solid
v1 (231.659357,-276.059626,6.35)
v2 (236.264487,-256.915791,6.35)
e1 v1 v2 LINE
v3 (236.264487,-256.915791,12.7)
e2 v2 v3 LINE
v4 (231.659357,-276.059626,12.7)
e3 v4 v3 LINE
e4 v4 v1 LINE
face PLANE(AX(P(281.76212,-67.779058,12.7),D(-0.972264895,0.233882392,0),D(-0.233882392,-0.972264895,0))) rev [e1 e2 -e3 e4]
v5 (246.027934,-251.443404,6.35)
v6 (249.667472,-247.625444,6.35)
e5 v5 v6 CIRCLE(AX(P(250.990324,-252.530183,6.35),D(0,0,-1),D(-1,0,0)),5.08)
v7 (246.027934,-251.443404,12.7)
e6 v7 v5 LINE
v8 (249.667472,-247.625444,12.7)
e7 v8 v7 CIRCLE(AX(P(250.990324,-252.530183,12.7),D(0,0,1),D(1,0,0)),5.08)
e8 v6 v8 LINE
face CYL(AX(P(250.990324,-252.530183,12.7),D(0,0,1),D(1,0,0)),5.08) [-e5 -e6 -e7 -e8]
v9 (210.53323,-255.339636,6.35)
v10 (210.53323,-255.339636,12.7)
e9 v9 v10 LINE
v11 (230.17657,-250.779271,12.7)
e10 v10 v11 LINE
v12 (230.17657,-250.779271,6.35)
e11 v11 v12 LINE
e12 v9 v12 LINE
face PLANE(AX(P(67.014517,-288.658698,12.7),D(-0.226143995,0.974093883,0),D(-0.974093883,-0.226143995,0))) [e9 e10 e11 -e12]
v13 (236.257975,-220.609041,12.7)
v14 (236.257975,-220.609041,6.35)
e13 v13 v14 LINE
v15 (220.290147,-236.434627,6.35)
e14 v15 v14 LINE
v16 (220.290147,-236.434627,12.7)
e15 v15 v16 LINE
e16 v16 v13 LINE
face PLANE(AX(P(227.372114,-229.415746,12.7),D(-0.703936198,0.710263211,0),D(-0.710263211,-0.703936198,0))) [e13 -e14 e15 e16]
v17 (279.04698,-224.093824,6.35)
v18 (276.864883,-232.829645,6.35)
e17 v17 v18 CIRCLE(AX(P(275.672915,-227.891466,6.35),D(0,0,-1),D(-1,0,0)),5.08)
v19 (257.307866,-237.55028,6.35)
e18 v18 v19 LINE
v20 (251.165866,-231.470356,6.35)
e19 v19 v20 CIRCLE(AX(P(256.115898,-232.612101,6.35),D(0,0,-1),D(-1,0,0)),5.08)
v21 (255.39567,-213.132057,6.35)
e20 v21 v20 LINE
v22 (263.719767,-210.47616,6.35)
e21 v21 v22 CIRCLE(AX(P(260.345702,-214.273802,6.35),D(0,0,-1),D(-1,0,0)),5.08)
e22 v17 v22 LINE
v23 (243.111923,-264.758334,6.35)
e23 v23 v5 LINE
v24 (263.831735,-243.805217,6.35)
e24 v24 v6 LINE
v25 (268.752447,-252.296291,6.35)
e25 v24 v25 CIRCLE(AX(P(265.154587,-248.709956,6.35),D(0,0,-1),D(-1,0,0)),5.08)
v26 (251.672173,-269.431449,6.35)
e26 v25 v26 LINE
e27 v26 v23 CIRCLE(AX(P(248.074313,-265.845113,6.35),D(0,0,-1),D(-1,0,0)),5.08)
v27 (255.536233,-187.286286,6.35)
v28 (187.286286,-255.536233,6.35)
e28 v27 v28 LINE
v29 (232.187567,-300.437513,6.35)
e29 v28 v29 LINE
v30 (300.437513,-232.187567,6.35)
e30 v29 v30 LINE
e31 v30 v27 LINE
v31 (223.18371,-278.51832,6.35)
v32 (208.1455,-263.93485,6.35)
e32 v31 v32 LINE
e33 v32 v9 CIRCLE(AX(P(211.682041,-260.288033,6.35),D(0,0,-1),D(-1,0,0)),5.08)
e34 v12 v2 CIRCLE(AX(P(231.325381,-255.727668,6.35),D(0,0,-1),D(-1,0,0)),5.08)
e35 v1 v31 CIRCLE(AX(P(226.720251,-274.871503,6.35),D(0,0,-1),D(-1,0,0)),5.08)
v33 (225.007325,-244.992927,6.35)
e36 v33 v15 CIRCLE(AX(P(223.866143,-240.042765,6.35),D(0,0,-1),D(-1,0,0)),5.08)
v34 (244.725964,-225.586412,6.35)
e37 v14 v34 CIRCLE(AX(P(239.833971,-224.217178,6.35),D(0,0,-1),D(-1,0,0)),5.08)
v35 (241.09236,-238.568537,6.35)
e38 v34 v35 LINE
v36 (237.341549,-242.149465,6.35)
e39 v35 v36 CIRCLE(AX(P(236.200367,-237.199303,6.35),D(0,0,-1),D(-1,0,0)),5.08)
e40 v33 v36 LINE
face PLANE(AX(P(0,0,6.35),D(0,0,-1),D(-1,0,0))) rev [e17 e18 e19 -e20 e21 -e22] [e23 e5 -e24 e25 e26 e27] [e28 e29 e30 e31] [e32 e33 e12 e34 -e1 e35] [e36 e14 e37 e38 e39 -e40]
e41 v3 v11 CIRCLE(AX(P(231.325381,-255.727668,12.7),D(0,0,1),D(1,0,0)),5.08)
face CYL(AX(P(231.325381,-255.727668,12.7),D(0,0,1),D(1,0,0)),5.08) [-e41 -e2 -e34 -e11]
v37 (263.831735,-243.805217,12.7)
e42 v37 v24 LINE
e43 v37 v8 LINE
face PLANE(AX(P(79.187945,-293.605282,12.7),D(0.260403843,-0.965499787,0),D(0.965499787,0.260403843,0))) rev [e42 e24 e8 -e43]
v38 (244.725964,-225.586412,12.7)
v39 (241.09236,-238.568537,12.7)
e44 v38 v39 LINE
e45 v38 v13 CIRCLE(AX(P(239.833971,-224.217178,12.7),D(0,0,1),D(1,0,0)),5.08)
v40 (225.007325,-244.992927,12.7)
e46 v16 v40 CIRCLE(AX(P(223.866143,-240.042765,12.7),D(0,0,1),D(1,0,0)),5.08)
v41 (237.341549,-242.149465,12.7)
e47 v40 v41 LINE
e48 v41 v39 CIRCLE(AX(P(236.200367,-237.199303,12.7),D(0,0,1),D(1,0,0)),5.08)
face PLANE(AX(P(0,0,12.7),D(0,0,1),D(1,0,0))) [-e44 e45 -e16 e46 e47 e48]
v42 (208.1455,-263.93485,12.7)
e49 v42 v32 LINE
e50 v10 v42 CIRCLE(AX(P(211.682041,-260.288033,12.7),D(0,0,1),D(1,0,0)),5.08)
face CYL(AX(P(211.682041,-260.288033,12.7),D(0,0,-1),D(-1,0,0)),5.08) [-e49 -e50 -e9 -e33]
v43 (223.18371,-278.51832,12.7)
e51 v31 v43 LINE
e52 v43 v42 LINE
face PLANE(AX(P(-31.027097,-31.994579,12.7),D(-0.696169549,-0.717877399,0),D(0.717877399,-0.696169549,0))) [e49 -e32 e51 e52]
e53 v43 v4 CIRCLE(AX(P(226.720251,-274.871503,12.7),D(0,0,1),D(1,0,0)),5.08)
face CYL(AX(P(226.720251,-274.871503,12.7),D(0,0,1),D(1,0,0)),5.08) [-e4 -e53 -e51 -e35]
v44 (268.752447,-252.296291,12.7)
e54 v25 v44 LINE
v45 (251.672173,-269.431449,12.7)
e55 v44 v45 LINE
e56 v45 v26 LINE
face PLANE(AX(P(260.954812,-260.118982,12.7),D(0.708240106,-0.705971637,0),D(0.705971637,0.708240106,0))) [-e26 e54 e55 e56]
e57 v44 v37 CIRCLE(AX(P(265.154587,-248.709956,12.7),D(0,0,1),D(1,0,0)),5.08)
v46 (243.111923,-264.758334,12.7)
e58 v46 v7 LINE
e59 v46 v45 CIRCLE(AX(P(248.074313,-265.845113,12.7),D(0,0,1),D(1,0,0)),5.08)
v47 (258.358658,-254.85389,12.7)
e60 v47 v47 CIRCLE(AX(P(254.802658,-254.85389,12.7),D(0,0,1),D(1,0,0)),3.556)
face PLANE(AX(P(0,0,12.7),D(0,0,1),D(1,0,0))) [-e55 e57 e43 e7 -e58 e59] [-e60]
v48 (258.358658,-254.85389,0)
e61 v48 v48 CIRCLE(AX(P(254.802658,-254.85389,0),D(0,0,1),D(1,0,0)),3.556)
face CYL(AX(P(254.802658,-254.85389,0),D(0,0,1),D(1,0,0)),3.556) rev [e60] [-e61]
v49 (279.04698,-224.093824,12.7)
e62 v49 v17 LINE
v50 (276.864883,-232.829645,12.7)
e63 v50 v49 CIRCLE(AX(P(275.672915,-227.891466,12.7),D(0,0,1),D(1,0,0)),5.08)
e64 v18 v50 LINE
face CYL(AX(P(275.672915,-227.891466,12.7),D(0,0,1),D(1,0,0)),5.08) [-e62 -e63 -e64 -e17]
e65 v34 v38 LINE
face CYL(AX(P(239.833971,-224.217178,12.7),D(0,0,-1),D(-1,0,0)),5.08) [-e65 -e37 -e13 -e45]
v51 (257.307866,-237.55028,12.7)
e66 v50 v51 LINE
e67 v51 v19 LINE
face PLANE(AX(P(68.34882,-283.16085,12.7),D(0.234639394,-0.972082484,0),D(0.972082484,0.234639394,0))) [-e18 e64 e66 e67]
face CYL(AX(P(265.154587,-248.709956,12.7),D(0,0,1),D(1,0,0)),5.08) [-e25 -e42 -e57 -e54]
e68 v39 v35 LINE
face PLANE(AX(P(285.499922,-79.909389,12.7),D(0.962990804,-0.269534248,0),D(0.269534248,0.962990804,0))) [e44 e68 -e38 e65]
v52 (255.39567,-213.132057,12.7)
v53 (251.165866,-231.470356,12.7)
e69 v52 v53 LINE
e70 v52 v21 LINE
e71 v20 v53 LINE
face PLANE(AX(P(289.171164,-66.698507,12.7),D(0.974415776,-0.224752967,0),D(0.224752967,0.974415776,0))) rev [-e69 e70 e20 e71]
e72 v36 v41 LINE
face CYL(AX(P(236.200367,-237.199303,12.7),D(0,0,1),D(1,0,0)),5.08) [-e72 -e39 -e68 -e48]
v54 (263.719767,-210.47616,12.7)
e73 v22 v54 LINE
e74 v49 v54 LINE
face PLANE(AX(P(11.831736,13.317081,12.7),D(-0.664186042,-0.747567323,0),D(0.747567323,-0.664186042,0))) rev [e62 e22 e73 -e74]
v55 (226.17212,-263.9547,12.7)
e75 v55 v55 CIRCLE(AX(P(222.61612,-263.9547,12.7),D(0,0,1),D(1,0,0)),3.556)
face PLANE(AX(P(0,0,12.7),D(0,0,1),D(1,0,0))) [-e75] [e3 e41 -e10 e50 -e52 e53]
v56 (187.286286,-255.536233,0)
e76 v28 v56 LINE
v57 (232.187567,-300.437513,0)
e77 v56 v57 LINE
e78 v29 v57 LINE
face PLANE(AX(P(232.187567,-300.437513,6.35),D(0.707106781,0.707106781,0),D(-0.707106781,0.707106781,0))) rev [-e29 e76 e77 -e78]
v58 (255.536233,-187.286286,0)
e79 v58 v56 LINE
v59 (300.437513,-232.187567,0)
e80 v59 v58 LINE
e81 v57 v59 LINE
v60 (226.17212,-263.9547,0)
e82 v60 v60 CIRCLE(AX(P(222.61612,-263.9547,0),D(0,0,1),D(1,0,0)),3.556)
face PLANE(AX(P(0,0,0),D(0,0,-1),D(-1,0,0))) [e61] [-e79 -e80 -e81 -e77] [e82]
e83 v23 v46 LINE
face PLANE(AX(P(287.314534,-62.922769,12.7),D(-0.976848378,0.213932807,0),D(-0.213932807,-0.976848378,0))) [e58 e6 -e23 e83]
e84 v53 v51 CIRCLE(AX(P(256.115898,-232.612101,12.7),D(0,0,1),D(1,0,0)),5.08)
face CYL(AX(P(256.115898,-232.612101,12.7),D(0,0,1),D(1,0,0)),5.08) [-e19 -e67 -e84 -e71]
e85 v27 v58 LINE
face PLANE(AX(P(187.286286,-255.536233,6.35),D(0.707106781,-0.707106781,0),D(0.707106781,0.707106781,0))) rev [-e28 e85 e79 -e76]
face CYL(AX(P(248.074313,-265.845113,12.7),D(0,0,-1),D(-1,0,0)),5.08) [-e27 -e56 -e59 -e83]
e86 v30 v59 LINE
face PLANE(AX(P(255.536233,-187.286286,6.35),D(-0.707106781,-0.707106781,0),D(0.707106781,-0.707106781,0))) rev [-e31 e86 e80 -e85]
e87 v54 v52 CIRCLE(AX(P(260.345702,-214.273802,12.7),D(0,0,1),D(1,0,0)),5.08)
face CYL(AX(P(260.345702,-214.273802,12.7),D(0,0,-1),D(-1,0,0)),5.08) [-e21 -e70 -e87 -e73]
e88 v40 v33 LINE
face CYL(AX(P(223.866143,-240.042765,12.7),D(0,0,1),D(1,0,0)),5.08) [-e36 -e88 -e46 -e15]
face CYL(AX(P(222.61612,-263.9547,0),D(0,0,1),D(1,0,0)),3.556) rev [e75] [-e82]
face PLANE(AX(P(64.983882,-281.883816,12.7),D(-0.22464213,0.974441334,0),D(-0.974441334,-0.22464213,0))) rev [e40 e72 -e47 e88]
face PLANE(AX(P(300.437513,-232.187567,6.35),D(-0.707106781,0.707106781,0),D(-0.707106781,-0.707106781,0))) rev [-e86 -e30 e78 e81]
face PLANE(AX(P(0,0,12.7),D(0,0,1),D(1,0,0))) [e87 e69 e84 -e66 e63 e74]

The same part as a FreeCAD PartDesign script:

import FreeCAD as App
import Part
import Sketcher

V = App.Vector
Q = App.Units.Quantity


def edges_at(feature, points):
    """Names of the edges that pass closest to the given points."""
    edges = feature.Shape.Edges
    near = lambda p: min(range(len(edges)), key=lambda i: edges[i].distToShape(Part.Vertex(*p))[0])
    return sorted({f"Edge{near(p) + 1}" for p in points})


def add_polygon(sketch, points):
    """Adds a closed chain of lines whose ends are joined by coincident constraints."""
    first, n = sketch.GeometryCount, len(points)
    for a, b in zip(points, points[1:] + points[:1]):
        sketch.addGeometry(Part.LineSegment(App.Vector(*a, 0), App.Vector(*b, 0)), False)
    for i in range(n):
        sketch.addConstraint(Sketcher.Constraint("Coincident", first + i, 2, first + (i + 1) % n, 1))

doc = App.newDocument("Part")
params = doc.addObject("Spreadsheet::Sheet", "Params")
for row, (alias, value) in enumerate([
    ("sketch1_length", "3.8 in"),
    ("sketch1_length2", "2.5 in"),
    ("pad1_length", "0.25 in"),
    ("pad2_length", "0.25 in"),
    ("fillet_radius", "0.2 in"),
    ("sketch3_diameter", "0.28 in"),
], start=1):
    params.set(f"A{row}", alias)
    params.set(f"B{row}", "=" + value)
    params.setAlias(f"B{row}", alias)

body = doc.addObject("PartDesign::Body", "Body")

# Sketch on XY plane
sketch1 = doc.addObject("Sketcher::SketchObject", "Sketch")
body.addObject(sketch1)
sketch1.AttachmentSupport = (doc.XY_Plane, [""])
sketch1.MapMode = "FlatFace"
add_polygon(sketch1, [(255.536233, -187.286286), (187.286286, -255.536233), (232.187567, -300.437513), (300.437513, -232.187567)])  # lines 0-3
sketch1.addConstraint(Sketcher.Constraint("Perpendicular", 0, 1))
sketch1.addConstraint(Sketcher.Constraint("Perpendicular", 1, 2))
sketch1.addConstraint(Sketcher.Constraint("Perpendicular", 2, 3))
sketch1.addConstraint(Sketcher.Constraint("Angle", 0, Q("-135 deg")))
sketch1.addConstraint(Sketcher.Constraint("Distance", 0, Q("3.8 in")))
sketch1.addConstraint(Sketcher.Constraint("Distance", 1, Q("2.5 in")))
sketch1.addConstraint(Sketcher.Constraint("DistanceX", -1, 1, 0, 2, 187.286286))
sketch1.addConstraint(Sketcher.Constraint("DistanceY", 0, 2, -1, 1, 255.536233))
sketch1.setExpression("Constraints[8]", "Params.sketch1_length")
sketch1.setExpression("Constraints[9]", "Params.sketch1_length2")
pad1 = doc.addObject("PartDesign::Pad", "Pad")
body.addObject(pad1)
pad1.Profile = sketch1
pad1.setExpression("Length", "Params.pad1_length")

# Sketch on XY plane
sketch2 = doc.addObject("Sketcher::SketchObject", "Sketch001")
body.addObject(sketch2)
sketch2.AttachmentSupport = (doc.XY_Plane, [""])
sketch2.MapMode = "FlatFace"
sketch2.AttachmentOffset = App.Placement(V(0, 0, 0.25 * 25.4), App.Rotation())
add_polygon(sketch2, [(238.188068, -248.919335), (235.653168, -249.507833), (201.455465, -257.447114), (224.736751, -280.0244), (229.466249, -284.734173), (230.632629, -280.327804)])  # lines 0-5
add_polygon(sketch2, [(239.390026, -281.753062), (246.845678, -274.273452), (281.528997, -239.478687), (266.916452, -242.973241), (246.688096, -248.429008), (241.454927, -272.32442)])  # lines 6-11
add_polygon(sketch2, [(257.323804, -204.793582), (257.245212, -205.113372), (249.318712, -239.478687), (282.613205, -231.442126), (286.198275, -230.576769), (283.949217, -228.449282)])  # lines 12-17
add_polygon(sketch2, [(240.279666, -241.472129), (248.079776, -213.603928), (250.0564, -206.933532), (242.381011, -214.540549), (207.490687, -249.12007), (218.261712, -246.548022)])  # lines 18-23
sketch2.addConstraint(Sketcher.Constraint("Parallel", 0, 1))
sketch2.addConstraint(Sketcher.Constraint("Parallel", 6, 7))
sketch2.addConstraint(Sketcher.Constraint("Parallel", 10, 11))
sketch2.addConstraint(Sketcher.Constraint("Parallel", 14, 15))
sketch2.addConstraint(Sketcher.Constraint("Parallel", 20, 21))
sketch2.addConstraint(Sketcher.Constraint("Horizontal", 7, 2, 13, 2))
sketch2.addConstraint(Sketcher.Constraint("DistanceX", 3, 2, 11, 2, Q("0.3906999 in")))
sketch2.addConstraint(Sketcher.Constraint("DistanceY", 7, 2, 14, 2, Q("0.3164 in")))
sketch2.addConstraint(Sketcher.Constraint("DistanceX", 21, 2, 4, 2, Q("0.9111001 in")))
sketch2.addConstraint(Sketcher.Constraint("Distance", 19, 6.957099))
sketch2.addConstraint(Sketcher.Constraint("Distance", 20, 10.806401))
sketch2.addConstraint(Sketcher.Constraint("DistanceY", 2, 2, -1, 1, 280.0244))
sketch2.addConstraint(Sketcher.Constraint("DistanceX", -1, 1, 19, 2, 250.0564))
sketch2.addConstraint(Sketcher.Constraint("DistanceX", 0, 2, 5, 2, 2.534899))
sketch2.addConstraint(Sketcher.Constraint("DistanceX", 4, 2, 10, 2, 10.822298))
sketch2.addConstraint(Sketcher.Constraint("DistanceX", 11, 2, 10, 2, 2.064901))
sketch2.addConstraint(Sketcher.Constraint("DistanceY", 16, 2, 17, 2, 23.655699))
sketch2.addConstraint(Sketcher.Constraint("DistanceX", 17, 2, 14, 2, 25.289401))
sketch2.addConstraint(Sketcher.Constraint("DistanceX", 20, 2, 12, 2, 14.864201))
sketch2.addConstraint(Sketcher.Constraint("DistanceX", 20, 2, 13, 2, 6.937701))
sketch2.addConstraint(Sketcher.Constraint("Distance", 6, 10.560839))
sketch2.addConstraint(Sketcher.Constraint("Distance", 10, 24.461741))
sketch2.addConstraint(Sketcher.Constraint("Distance", 13, 35.26761))
sketch2.addConstraint(Sketcher.Constraint("Distance", 15, 3.688031))
sketch2.addConstraint(Sketcher.Constraint("Distance", 16, 3.095879))
sketch2.addConstraint(Sketcher.Constraint("Distance", 21, 49.12309))
sketch2.addConstraint(Sketcher.Constraint("Distance", 22, 11.073862))
sketch2.addConstraint(Sketcher.Constraint("DistanceX", -1, 1, 0, 2, 235.653168))
sketch2.addConstraint(Sketcher.Constraint("DistanceX", -1, 1, 2, 2, 224.736751))
sketch2.addConstraint(Sketcher.Constraint("DistanceX", -1, 1, 3, 2, 229.466249))
sketch2.addConstraint(Sketcher.Constraint("DistanceX", -1, 1, 6, 2, 246.845678))
sketch2.addConstraint(Sketcher.Constraint("DistanceY", 6, 2, -1, 1, 274.273452))
sketch2.addConstraint(Sketcher.Constraint("DistanceX", -1, 1, 8, 2, 266.916452))
sketch2.addConstraint(Sketcher.Constraint("DistanceY", 8, 2, -1, 1, 242.973241))
sketch2.addConstraint(Sketcher.Constraint("DistanceY", 10, 2, -1, 1, 272.32442))
sketch2.addConstraint(Sketcher.Constraint("DistanceY", 12, 2, -1, 1, 205.113372))
sketch2.addConstraint(Sketcher.Constraint("DistanceY", 15, 2, -1, 1, 230.576769))
sketch2.addConstraint(Sketcher.Constraint("DistanceY", 16, 2, -1, 1, 228.449282))
sketch2.addConstraint(Sketcher.Constraint("DistanceY", 18, 2, -1, 1, 213.603928))
sketch2.addConstraint(Sketcher.Constraint("DistanceY", 20, 2, -1, 1, 214.540549))
sketch2.addConstraint(Sketcher.Constraint("DistanceY", 22, 2, -1, 1, 246.548022))
sketch2.addConstraint(Sketcher.Constraint("DistanceY", 23, 2, -1, 1, 241.472129))
sketch2.addConstraint(Sketcher.Constraint("DistanceY", 1, 2, 0, 2, 7.939281))
sketch2.addConstraint(Sketcher.Constraint("DistanceY", 3, 2, 0, 2, 35.22634))
sketch2.addConstraint(Sketcher.Constraint("DistanceY", 3, 2, 4, 2, 4.406369))
sketch2.addConstraint(Sketcher.Constraint("DistanceY", 4, 2, 5, 2, 31.408469))
sketch2.addConstraint(Sketcher.Constraint("DistanceY", 3, 2, 6, 2, 10.460721))
sketch2.addConstraint(Sketcher.Constraint("DistanceX", 23, 2, 9, 2, 6.408431))
pad2 = doc.addObject("PartDesign::Pad", "Pad001")
body.addObject(pad2)
pad2.Profile = sketch2
pad2.setExpression("Length", "Params.pad2_length")
doc.recompute()

fillet = doc.addObject("PartDesign::Fillet", "Fillet")
body.addObject(fillet)
fillet.Base = (pad2, edges_at(pad2, [
    (250.056, -206.934, 9.525),
    (257.324, -204.794, 9.525),
    (286.198, -230.577, 9.525),
    (249.319, -239.479, 9.525),
    (239.39, -281.753, 9.525),
    (246.688, -248.429, 9.525),
    (281.529, -239.479, 9.525),
    (201.455, -257.447, 9.525),
    (238.188, -248.919, 9.525),
    (207.491, -249.12, 9.525),
    (240.28, -241.472, 9.525),
    (229.466, -284.734, 9.525),
]))
fillet.setExpression("Radius", "Params.fillet_radius")

# Sketch on XY plane
sketch3 = doc.addObject("Sketcher::SketchObject", "Sketch002")
body.addObject(sketch3)
sketch3.AttachmentSupport = (doc.XY_Plane, [""])
sketch3.MapMode = "FlatFace"
sketch3.AttachmentOffset = App.Placement(V(0, 0, 0.5 * 25.4), App.Rotation())
sketch3.addGeometry(Part.Circle(V(254.802658, -254.85389, 0), V(0, 0, 1), 3.556), False)
sketch3.addGeometry(Part.Circle(V(222.61612, -263.9547, 0), V(0, 0, 1), 3.556), False)
sketch3.addConstraint(Sketcher.Constraint("Equal", 0, 1))
sketch3.addConstraint(Sketcher.Constraint("Diameter", 0, Q("0.28 in")))
sketch3.addConstraint(Sketcher.Constraint("DistanceY", 1, 3, -1, 1, 263.9547))
sketch3.addConstraint(Sketcher.Constraint("DistanceX", -1, 1, 0, 3, 254.802658))
sketch3.addConstraint(Sketcher.Constraint("DistanceY", 0, 3, -1, 1, 254.85389))
sketch3.addConstraint(Sketcher.Constraint("DistanceX", -1, 1, 1, 3, 222.61612))
sketch3.setExpression("Constraints[1]", "Params.sketch3_diameter")
pocket1 = doc.addObject("PartDesign::Pocket", "Pocket")
body.addObject(pocket1)
pocket1.Profile = sketch3
pocket1.Type = "ThroughAll"
pocket1.Midplane = True

doc.recompute()
